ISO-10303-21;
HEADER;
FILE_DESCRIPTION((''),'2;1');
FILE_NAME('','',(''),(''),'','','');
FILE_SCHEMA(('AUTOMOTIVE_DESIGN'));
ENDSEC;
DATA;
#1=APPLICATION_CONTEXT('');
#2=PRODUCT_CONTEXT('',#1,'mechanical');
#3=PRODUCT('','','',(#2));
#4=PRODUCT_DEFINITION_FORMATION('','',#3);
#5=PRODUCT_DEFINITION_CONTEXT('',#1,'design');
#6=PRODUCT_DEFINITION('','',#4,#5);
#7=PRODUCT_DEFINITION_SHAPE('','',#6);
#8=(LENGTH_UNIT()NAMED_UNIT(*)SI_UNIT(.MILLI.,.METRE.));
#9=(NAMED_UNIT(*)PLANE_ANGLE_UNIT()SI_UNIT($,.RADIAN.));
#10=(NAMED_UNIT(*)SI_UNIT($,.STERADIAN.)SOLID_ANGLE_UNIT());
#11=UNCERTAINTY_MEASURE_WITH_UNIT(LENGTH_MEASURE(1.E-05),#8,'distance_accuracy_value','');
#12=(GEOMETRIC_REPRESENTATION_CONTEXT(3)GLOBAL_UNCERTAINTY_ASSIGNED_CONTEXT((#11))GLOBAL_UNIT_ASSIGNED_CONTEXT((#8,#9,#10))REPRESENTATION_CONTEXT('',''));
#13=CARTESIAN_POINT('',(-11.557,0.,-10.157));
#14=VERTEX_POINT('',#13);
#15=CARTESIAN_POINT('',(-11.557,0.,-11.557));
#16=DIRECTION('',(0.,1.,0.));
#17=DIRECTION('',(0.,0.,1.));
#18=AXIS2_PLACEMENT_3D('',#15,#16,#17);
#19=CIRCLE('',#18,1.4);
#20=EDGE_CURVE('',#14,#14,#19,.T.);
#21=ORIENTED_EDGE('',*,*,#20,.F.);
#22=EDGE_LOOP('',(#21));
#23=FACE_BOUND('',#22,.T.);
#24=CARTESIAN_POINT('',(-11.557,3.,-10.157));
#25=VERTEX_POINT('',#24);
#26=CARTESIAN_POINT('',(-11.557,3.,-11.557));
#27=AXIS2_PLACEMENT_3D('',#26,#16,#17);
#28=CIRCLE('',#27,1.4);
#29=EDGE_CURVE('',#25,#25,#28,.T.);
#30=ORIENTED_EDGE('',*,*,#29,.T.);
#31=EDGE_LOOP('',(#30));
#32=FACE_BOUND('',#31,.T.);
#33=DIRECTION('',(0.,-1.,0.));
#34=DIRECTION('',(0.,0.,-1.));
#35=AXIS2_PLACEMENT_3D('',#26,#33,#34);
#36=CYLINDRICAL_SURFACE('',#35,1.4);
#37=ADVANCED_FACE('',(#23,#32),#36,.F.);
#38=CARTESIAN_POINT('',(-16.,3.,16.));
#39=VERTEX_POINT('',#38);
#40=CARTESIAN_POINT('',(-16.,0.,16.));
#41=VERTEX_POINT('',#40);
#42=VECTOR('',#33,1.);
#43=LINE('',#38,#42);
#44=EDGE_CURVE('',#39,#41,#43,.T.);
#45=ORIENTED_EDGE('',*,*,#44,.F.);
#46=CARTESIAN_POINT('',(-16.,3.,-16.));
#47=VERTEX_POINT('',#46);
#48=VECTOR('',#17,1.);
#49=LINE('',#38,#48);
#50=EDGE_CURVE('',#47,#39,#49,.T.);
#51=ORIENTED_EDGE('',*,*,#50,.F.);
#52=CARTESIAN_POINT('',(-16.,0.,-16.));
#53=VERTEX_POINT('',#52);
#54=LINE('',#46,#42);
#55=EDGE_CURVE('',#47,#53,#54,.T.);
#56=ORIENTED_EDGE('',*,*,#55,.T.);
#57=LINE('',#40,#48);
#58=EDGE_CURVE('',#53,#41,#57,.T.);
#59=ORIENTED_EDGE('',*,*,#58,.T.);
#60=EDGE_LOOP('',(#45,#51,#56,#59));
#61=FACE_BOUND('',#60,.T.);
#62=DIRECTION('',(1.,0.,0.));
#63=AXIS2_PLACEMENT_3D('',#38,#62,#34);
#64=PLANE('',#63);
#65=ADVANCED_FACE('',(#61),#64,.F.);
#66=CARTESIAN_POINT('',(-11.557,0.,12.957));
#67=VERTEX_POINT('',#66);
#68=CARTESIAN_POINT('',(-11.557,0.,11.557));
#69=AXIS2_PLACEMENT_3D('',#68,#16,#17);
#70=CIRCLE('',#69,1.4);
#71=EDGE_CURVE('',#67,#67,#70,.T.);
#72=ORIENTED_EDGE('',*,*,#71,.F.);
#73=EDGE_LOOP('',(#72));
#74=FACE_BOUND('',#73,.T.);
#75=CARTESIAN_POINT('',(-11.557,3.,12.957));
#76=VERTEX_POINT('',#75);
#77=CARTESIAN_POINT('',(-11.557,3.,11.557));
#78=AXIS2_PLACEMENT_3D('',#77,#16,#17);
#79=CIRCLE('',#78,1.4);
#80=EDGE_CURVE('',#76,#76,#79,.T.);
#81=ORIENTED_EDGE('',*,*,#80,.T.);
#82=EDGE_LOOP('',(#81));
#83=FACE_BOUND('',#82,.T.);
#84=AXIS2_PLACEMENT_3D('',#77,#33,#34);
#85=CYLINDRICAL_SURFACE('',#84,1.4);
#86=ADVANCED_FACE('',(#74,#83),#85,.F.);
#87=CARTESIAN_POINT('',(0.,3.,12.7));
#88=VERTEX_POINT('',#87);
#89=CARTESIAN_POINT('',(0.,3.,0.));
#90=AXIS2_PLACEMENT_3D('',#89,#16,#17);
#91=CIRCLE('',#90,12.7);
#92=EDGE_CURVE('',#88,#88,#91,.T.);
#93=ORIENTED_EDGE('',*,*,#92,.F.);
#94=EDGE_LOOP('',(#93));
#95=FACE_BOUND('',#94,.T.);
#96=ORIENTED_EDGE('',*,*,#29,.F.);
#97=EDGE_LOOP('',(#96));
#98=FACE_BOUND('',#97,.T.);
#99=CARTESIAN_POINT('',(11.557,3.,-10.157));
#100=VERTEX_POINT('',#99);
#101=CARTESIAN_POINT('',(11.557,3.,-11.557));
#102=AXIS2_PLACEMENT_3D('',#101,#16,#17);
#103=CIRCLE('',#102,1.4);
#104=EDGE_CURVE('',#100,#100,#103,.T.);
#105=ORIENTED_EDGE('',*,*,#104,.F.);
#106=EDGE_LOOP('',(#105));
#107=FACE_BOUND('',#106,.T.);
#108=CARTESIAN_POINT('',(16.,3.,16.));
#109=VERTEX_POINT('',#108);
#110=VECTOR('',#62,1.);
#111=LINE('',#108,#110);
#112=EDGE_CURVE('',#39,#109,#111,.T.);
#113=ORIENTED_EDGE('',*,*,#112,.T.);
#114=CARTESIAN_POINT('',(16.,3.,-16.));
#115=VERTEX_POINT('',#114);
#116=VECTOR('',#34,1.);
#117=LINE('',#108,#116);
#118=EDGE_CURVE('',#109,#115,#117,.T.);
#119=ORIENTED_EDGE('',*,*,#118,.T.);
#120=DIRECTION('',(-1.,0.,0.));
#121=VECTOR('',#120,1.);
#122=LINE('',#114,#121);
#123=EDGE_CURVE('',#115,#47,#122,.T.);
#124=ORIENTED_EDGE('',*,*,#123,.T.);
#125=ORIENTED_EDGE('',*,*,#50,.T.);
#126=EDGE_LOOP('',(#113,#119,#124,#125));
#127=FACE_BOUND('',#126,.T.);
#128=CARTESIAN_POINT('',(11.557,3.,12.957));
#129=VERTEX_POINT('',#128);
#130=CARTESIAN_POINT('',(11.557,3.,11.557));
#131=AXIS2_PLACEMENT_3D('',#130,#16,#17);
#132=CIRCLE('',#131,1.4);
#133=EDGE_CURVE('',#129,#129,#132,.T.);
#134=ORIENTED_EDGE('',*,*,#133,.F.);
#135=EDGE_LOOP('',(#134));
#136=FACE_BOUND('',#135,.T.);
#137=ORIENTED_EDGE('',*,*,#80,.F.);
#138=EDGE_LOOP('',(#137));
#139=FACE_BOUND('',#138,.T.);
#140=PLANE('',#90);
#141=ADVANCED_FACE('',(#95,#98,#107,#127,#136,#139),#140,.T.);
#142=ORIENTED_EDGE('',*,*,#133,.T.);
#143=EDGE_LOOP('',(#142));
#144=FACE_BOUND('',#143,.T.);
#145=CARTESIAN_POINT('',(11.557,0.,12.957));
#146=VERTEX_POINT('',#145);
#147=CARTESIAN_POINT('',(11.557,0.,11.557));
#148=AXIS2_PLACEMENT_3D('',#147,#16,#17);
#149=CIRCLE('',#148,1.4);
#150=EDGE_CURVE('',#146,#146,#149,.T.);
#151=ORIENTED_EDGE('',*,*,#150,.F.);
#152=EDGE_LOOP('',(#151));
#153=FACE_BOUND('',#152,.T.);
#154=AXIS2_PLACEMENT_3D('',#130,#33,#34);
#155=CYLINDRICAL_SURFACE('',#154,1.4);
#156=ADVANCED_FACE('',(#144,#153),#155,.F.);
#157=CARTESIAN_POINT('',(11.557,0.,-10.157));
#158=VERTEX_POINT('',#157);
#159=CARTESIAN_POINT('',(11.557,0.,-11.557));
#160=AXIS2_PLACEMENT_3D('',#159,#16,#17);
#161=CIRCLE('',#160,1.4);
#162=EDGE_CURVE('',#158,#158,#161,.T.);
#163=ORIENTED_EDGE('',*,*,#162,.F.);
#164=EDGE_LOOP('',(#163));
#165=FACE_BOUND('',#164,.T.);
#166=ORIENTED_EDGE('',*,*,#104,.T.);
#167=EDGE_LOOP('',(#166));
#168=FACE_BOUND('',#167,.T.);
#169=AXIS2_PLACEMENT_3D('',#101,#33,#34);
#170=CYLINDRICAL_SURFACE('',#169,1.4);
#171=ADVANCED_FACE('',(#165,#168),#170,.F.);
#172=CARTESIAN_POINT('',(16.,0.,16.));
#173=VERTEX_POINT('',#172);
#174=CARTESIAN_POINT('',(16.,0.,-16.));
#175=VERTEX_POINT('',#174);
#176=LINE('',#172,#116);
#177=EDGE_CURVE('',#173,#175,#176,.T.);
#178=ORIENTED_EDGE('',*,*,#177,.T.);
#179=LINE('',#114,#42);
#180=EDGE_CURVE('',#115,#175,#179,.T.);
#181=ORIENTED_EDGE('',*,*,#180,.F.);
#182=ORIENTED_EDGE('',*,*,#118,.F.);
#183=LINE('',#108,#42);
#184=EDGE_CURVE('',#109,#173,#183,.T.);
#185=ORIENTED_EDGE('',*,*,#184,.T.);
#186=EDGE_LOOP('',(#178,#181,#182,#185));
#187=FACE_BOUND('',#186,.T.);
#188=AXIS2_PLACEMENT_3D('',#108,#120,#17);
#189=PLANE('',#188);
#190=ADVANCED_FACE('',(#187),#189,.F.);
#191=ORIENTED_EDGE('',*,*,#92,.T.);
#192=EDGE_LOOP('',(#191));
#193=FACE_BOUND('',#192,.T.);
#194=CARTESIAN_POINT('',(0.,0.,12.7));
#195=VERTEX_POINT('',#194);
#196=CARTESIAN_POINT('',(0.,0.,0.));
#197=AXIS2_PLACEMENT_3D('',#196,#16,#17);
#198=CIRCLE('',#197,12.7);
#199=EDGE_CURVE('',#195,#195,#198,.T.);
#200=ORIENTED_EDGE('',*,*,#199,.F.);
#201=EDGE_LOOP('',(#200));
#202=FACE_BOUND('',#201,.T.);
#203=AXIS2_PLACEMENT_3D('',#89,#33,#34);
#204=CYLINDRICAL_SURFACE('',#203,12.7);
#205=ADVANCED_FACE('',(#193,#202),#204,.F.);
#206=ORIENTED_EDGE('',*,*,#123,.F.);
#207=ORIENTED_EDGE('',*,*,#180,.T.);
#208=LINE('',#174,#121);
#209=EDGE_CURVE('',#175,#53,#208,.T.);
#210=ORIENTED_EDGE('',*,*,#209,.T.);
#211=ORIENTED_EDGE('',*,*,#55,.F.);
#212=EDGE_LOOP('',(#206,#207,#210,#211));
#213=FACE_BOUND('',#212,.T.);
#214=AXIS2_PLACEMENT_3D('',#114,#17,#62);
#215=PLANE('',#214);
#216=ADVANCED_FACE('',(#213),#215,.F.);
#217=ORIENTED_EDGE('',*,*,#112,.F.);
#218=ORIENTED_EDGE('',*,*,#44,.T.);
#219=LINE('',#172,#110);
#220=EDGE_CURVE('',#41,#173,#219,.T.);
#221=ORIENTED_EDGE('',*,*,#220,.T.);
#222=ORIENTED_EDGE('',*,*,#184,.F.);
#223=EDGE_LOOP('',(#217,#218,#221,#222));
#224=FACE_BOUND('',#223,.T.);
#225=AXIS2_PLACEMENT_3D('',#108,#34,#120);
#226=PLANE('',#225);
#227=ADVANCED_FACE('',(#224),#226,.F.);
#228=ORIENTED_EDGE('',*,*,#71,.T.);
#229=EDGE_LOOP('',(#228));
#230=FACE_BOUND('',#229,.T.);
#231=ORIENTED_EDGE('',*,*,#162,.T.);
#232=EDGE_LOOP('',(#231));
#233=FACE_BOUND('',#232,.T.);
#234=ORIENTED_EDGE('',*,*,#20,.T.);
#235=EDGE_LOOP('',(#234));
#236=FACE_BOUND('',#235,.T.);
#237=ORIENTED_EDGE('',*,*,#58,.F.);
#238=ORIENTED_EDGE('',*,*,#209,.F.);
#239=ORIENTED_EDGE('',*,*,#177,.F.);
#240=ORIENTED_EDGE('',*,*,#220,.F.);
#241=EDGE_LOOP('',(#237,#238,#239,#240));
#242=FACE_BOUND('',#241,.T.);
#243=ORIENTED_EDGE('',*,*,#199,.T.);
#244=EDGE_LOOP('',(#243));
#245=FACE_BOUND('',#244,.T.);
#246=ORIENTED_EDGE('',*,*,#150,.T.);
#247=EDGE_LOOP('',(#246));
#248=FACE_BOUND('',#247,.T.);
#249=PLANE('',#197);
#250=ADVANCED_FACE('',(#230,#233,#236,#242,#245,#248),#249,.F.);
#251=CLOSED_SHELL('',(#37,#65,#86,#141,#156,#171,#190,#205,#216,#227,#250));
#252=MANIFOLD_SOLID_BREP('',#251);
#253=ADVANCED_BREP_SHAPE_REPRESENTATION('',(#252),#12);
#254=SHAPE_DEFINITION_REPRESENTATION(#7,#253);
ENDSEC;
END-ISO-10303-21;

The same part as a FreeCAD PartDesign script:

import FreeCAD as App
import Part
import Sketcher

V = App.Vector
Q = App.Units.Quantity

doc = App.newDocument("Part")
params = doc.addObject("Spreadsheet::Sheet", "Params")
for row, (alias, value) in enumerate([
    ("sketch1_diameter", "2.8 mm"),
    ("sketch1_diameter2", "25.4 mm"),
    ("sketch1_width", "32 mm"),
    ("pad1_length", "3 mm"),
], start=1):
    params.set(f"A{row}", alias)
    params.set(f"B{row}", "=" + value)
    params.setAlias(f"B{row}", alias)

body = doc.addObject("PartDesign::Body", "Body")

# Sketch on XZ plane
sketch1 = body.newObject("Sketcher::SketchObject", "Sketch")
sketch1.AttachmentSupport = (doc.getObject("XZ_Plane"), [""])
sketch1.MapMode = "FlatFace"
sketch1.addGeometry([
    Part.LineSegment(V(-16, -16, 0), V(-16, 16, 0)),  # 0
    Part.LineSegment(V(-16, 16, 0), V(16, 16, 0)),  # 1
    Part.LineSegment(V(16, 16, 0), V(16, -16, 0)),  # 2
    Part.LineSegment(V(16, -16, 0), V(-16, -16, 0)),  # 3
    Part.Circle(V(-11.557, 11.557, 0), V(0, 0, 1), 1.4),  # 4
    Part.Circle(V(11.557, 11.557, 0), V(0, 0, 1), 1.4),  # 5
    Part.Circle(V(-11.557, -11.557, 0), V(0, 0, 1), 1.4),  # 6
    Part.Circle(V(0, 0, 0), V(0, 0, 1), 12.7),  # 7
    Part.Circle(V(11.557, -11.557, 0), V(0, 0, 1), 1.4),  # 8
], False)
sketch1.addConstraint([
    Sketcher.Constraint("Coincident", 0, 2, 1, 1),
    Sketcher.Constraint("Coincident", 1, 2, 2, 1),
    Sketcher.Constraint("Coincident", 2, 2, 3, 1),
    Sketcher.Constraint("Coincident", 3, 2, 0, 1),
    Sketcher.Constraint("Vertical", 0),
    Sketcher.Constraint("Horizontal", 1),
    Sketcher.Constraint("Vertical", 2),
    Sketcher.Constraint("Horizontal", 3),
    Sketcher.Constraint("Coincident", 7, 3, -1, 1),
    Sketcher.Constraint("Equal", 4, 5),
    Sketcher.Constraint("Equal", 5, 6),
    Sketcher.Constraint("Equal", 6, 8),
    Sketcher.Constraint("Symmetric", 5, 3, 6, 3, -1, 1),
    Sketcher.Constraint("Symmetric", 4, 3, 8, 3, -1, 1),
    Sketcher.Constraint("Symmetric", 0, 2, 2, 2, -1, 1),
    Sketcher.Constraint("Symmetric", 4, 3, 5, 3, -2),
    Sketcher.Constraint("Equal", 3, 0),
    Sketcher.Constraint("Diameter", 4, Q("2.8 mm")),
    Sketcher.Constraint("Diameter", 7, Q("25.4 mm")),
    Sketcher.Constraint("DistanceX", 1, 1, 1, 2, Q("32 mm")),
    Sketcher.Constraint("DistanceX", 4, 3, -1, 1, Q("11.557 mm")),
    Sketcher.Constraint("DistanceY", -1, 1, 4, 3, Q("11.557 mm")),
])
sketch1.setExpression("Constraints[17]", "Params.sketch1_diameter")
sketch1.setExpression("Constraints[18]", "Params.sketch1_diameter2")
sketch1.setExpression("Constraints[19]", "Params.sketch1_width")
pad1 = body.newObject("PartDesign::Pad", "Pad")
pad1.Profile = sketch1
pad1.setExpression("Length", "Params.pad1_length")
pad1.Reversed = True

doc.recompute()
